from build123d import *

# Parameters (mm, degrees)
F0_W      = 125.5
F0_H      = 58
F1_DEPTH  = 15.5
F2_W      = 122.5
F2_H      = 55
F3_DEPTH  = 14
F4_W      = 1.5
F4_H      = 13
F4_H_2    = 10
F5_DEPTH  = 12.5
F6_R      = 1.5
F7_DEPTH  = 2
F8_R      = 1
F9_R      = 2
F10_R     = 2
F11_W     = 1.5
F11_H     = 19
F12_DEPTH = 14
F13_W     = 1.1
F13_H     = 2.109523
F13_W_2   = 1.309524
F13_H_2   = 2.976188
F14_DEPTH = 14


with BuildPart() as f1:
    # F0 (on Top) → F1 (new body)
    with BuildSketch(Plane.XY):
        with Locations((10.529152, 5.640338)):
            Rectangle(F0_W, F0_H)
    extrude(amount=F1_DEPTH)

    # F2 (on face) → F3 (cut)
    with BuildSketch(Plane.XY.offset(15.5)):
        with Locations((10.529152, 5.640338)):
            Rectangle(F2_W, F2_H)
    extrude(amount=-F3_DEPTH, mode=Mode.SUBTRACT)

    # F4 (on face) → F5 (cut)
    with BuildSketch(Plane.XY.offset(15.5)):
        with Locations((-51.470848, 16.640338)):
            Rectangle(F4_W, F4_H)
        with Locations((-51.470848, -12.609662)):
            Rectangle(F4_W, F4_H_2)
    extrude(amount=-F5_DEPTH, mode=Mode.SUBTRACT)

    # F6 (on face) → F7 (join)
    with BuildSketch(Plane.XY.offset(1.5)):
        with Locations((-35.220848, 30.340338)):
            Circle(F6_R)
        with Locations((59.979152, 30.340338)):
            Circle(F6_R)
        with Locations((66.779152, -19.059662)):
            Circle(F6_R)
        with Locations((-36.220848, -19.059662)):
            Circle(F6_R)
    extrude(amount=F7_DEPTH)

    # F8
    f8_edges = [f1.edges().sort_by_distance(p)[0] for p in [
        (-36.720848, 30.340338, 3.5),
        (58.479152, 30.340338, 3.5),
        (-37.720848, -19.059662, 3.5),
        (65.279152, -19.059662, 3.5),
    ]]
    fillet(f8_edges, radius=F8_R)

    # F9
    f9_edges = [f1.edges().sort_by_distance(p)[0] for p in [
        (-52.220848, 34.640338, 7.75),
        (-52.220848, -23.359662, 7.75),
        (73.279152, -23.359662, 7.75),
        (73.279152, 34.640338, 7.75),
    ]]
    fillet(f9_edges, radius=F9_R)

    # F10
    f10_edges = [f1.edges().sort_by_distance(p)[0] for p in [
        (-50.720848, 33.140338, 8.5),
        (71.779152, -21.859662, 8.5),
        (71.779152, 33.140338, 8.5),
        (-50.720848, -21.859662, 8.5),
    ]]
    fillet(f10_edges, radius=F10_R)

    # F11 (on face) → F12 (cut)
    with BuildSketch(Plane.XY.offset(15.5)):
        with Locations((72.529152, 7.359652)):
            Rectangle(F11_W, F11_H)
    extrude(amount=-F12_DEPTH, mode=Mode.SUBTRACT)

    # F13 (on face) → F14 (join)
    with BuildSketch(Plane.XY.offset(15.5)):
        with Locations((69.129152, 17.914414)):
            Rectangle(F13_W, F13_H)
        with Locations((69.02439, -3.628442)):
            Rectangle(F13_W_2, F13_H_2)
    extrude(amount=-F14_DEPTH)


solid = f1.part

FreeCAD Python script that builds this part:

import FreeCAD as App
import Part
import Sketcher


def edges_at(feature, points):
    """Names of the edges that pass closest to the given points."""
    edges = feature.Shape.Edges
    near = lambda p: min(range(len(edges)), key=lambda i: edges[i].distToShape(Part.Vertex(*p))[0])
    return sorted({f"Edge{near(p) + 1}" for p in points})


def add_polygon(sketch, points):
    """Adds a closed chain of lines whose ends are joined by coincident constraints."""
    first, n = sketch.GeometryCount, len(points)
    for a, b in zip(points, points[1:] + points[:1]):
        sketch.addGeometry(Part.LineSegment(App.Vector(*a, 0), App.Vector(*b, 0)), False)
    for i in range(n):
        sketch.addConstraint(Sketcher.Constraint("Coincident", first + i, 2, first + (i + 1) % n, 1))

doc = App.newDocument("Part")
params = doc.addObject("Spreadsheet::Sheet", "Params")
for row, (alias, value) in enumerate([
    ("sketch1_height", "58 mm"),
    ("sketch1_width", "125.5 mm"),
    ("pad1_length", "15.5 mm"),
    ("sketch2_height", "55 mm"),
    ("sketch2_width", "122.5 mm"),
    ("pocket1_length", "14 mm"),
    ("sketch3_height", "13 mm"),
    ("sketch3_height2", "10 mm"),
    ("sketch3_width", "1.5 mm"),
    ("pocket2_length", "12.5 mm"),
    ("sketch4_diameter", "3 mm"),
    ("pad2_length", "2 mm"),
    ("fillet_radius", "1 mm"),
    ("fillet2_radius", "2 mm"),
    ("fillet3_radius", "2 mm"),
    ("sketch5_height", "19 mm"),
    ("sketch5_width", "1.5 mm"),
    ("pocket3_length", "14 mm"),
    ("sketch6_width", "1.1 mm"),
    ("pad3_length", "14 mm"),
], start=1):
    params.set(f"A{row}", alias)
    params.set(f"B{row}", "=" + value)
    params.setAlias(f"B{row}", alias)

body = doc.addObject("PartDesign::Body", "Body")

# Sketch on XY plane
sketch1 = doc.addObject("Sketcher::SketchObject", "Sketch")
body.addObject(sketch1)
sketch1.AttachmentSupport = (doc.XY_Plane, [""])
sketch1.MapMode = "FlatFace"
add_polygon(sketch1, [(-52.220848, 34.640338), (-52.220848, -23.359662), (73.279152, -23.359662), (73.279152, 34.640338)])  # lines 0-3
sketch1.addConstraint(Sketcher.Constraint("Vertical", 0))
sketch1.addConstraint(Sketcher.Constraint("Horizontal", 1))
sketch1.addConstraint(Sketcher.Constraint("Vertical", 2))
sketch1.addConstraint(Sketcher.Constraint("Horizontal", 3))
sketch1.addConstraint(Sketcher.Constraint("DistanceY", 0, 2, 0, 1, 58.0))
sketch1.addConstraint(Sketcher.Constraint("DistanceX", 1, 1, 1, 2, 125.5))
sketch1.addConstraint(Sketcher.Constraint("DistanceY", 0, 2, -1, 1, 23.359662))
sketch1.addConstraint(Sketcher.Constraint("DistanceX", -1, 1, 1, 2, 73.279152))
sketch1.setExpression("Constraints[8]", "Params.sketch1_height")
sketch1.setExpression("Constraints[9]", "Params.sketch1_width")
pad1 = doc.addObject("PartDesign::Pad", "Pad")
body.addObject(pad1)
pad1.Profile = sketch1
pad1.setExpression("Length", "Params.pad1_length")

# Sketch on XY plane
sketch2 = doc.addObject("Sketcher::SketchObject", "Sketch001")
body.addObject(sketch2)
sketch2.AttachmentSupport = (doc.XY_Plane, [""])
sketch2.MapMode = "FlatFace"
sketch2.AttachmentOffset = App.Placement(App.Vector(0, 0, 15.5), App.Rotation())
add_polygon(sketch2, [(-50.720848, 33.140338), (-50.720848, -21.859662), (71.779152, -21.859662), (71.779152, 33.140338)])  # lines 0-3
sketch2.addConstraint(Sketcher.Constraint("Vertical", 0))
sketch2.addConstraint(Sketcher.Constraint("Horizontal", 1))
sketch2.addConstraint(Sketcher.Constraint("Vertical", 2))
sketch2.addConstraint(Sketcher.Constraint("Horizontal", 3))
sketch2.addConstraint(Sketcher.Constraint("DistanceY", 0, 2, 0, 1, 55.0))
sketch2.addConstraint(Sketcher.Constraint("DistanceX", 1, 1, 1, 2, 122.5))
sketch2.addConstraint(Sketcher.Constraint("DistanceY", 0, 2, -1, 1, 21.859662))
sketch2.addConstraint(Sketcher.Constraint("DistanceX", -1, 1, 1, 2, 71.779152))
sketch2.setExpression("Constraints[8]", "Params.sketch2_height")
sketch2.setExpression("Constraints[9]", "Params.sketch2_width")
pocket1 = doc.addObject("PartDesign::Pocket", "Pocket")
body.addObject(pocket1)
pocket1.Profile = sketch2
pocket1.setExpression("Length", "Params.pocket1_length")

# Sketch on XY plane
sketch3 = doc.addObject("Sketcher::SketchObject", "Sketch002")
body.addObject(sketch3)
sketch3.AttachmentSupport = (doc.XY_Plane, [""])
sketch3.MapMode = "FlatFace"
sketch3.AttachmentOffset = App.Placement(App.Vector(0, 0, 15.5), App.Rotation())
add_polygon(sketch3, [(-52.220848, 23.140338), (-52.220848, 10.140338), (-50.720848, 10.140338), (-50.720848, 23.140338)])  # lines 0-3
add_polygon(sketch3, [(-52.220848, -7.609662), (-52.220848, -17.609662), (-50.720848, -17.609662), (-50.720848, -7.609662)])  # lines 4-7
sketch3.addConstraint(Sketcher.Constraint("Vertical", 0))
sketch3.addConstraint(Sketcher.Constraint("Horizontal", 1))
sketch3.addConstraint(Sketcher.Constraint("Vertical", 2))
sketch3.addConstraint(Sketcher.Constraint("Horizontal", 3))
sketch3.addConstraint(Sketcher.Constraint("Vertical", 4))
sketch3.addConstraint(Sketcher.Constraint("Horizontal", 5))
sketch3.addConstraint(Sketcher.Constraint("Vertical", 6))
sketch3.addConstraint(Sketcher.Constraint("Horizontal", 7))
sketch3.addConstraint(Sketcher.Constraint("Vertical", 3, 2, 4, 2))
sketch3.addConstraint(Sketcher.Constraint("Vertical", 2, 2, 5, 2))
sketch3.addConstraint(Sketcher.Constraint("DistanceY", 0, 2, 0, 1, 13.0))
sketch3.addConstraint(Sketcher.Constraint("DistanceY", 4, 2, 4, 1, 10.0))
sketch3.addConstraint(Sketcher.Constraint("DistanceX", 1, 1, 1, 2, 1.5))
sketch3.addConstraint(Sketcher.Constraint("DistanceY", 4, 2, 0, 2, 27.75))
sketch3.addConstraint(Sketcher.Constraint("DistanceY", -1, 1, 2, 2, 23.140338))
sketch3.addConstraint(Sketcher.Constraint("DistanceX", 0, 2, -1, 1, 52.220848))
sketch3.setExpression("Constraints[18]", "Params.sketch3_height")
sketch3.setExpression("Constraints[19]", "Params.sketch3_height2")
sketch3.setExpression("Constraints[20]", "Params.sketch3_width")
pocket2 = doc.addObject("PartDesign::Pocket", "Pocket001")
body.addObject(pocket2)
pocket2.Profile = sketch3
pocket2.setExpression("Length", "Params.pocket2_length")

# Sketch on XY plane
sketch4 = doc.addObject("Sketcher::SketchObject", "Sketch003")
body.addObject(sketch4)
sketch4.AttachmentSupport = (doc.XY_Plane, [""])
sketch4.MapMode = "FlatFace"
sketch4.AttachmentOffset = App.Placement(App.Vector(0, 0, 1.5), App.Rotation())
sketch4.addGeometry(Part.Circle(App.Vector(-35.220848, 30.340338, 0), App.Vector(0, 0, 1), 1.5), False)
sketch4.addGeometry(Part.Circle(App.Vector(59.979152, 30.340338, 0), App.Vector(0, 0, 1), 1.5), False)
sketch4.addGeometry(Part.Circle(App.Vector(66.779152, -19.059662, 0), App.Vector(0, 0, 1), 1.5), False)
sketch4.addGeometry(Part.Circle(App.Vector(-36.220848, -19.059662, 0), App.Vector(0, 0, 1), 1.5), False)
sketch4.addConstraint(Sketcher.Constraint("Equal", 0, 1))
sketch4.addConstraint(Sketcher.Constraint("Equal", 1, 2))
sketch4.addConstraint(Sketcher.Constraint("Equal", 2, 3))
sketch4.addConstraint(Sketcher.Constraint("Horizontal", 0, 3, 1, 3))
sketch4.addConstraint(Sketcher.Constraint("Horizontal", 2, 3, 3, 3))
sketch4.addConstraint(Sketcher.Constraint("Diameter", 0, 3.0))
sketch4.addConstraint(Sketcher.Constraint("DistanceX", 0, 3, 2, 3, 102.0))
sketch4.addConstraint(Sketcher.Constraint("DistanceX", 3, 3, 0, 3, 1.0))
sketch4.addConstraint(Sketcher.Constraint("DistanceX", 0, 3, 1, 3, 95.2))
sketch4.addConstraint(Sketcher.Constraint("DistanceY", 2, 3, 1, 3, 49.4))
sketch4.addConstraint(Sketcher.Constraint("DistanceX", -1, 1, 2, 3, 66.779152))
sketch4.addConstraint(Sketcher.Constraint("DistanceY", 2, 3, -1, 1, 19.059662))
sketch4.setExpression("Constraints[5]", "Params.sketch4_diameter")
pad2 = doc.addObject("PartDesign::Pad", "Pad001")
body.addObject(pad2)
pad2.Profile = sketch4
pad2.setExpression("Length", "Params.pad2_length")
doc.recompute()

fillet = doc.addObject("PartDesign::Fillet", "Fillet")
body.addObject(fillet)
fillet.Base = (pad2, edges_at(pad2, [
    (-36.721, 30.34, 3.5),
    (58.479, 30.34, 3.5),
    (-37.721, -19.06, 3.5),
    (65.279, -19.06, 3.5),
]))
fillet.setExpression("Radius", "Params.fillet_radius")
doc.recompute()

fillet2 = doc.addObject("PartDesign::Fillet", "Fillet001")
body.addObject(fillet2)
fillet2.Base = (fillet, edges_at(fillet, [
    (-52.221, 34.64, 7.75),
    (-52.221, -23.36, 7.75),
    (73.279, -23.36, 7.75),
    (73.279, 34.64, 7.75),
]))
fillet2.setExpression("Radius", "Params.fillet2_radius")
doc.recompute()

fillet3 = doc.addObject("PartDesign::Fillet", "Fillet002")
body.addObject(fillet3)
fillet3.Base = (fillet2, edges_at(fillet2, [
    (-50.721, 33.14, 8.5),
    (71.779, -21.86, 8.5),
    (71.779, 33.14, 8.5),
    (-50.721, -21.86, 8.5),
]))
fillet3.setExpression("Radius", "Params.fillet3_radius")

# Sketch on XY plane
sketch5 = doc.addObject("Sketcher::SketchObject", "Sketch004")
body.addObject(sketch5)
sketch5.AttachmentSupport = (doc.XY_Plane, [""])
sketch5.MapMode = "FlatFace"
sketch5.AttachmentOffset = App.Placement(App.Vector(0, 0, 15.5), App.Rotation())
add_polygon(sketch5, [(71.779152, 16.859652), (71.779152, -2.140348), (73.279152, -2.140348), (73.279152, 16.859652)])  # lines 0-3
sketch5.addConstraint(Sketcher.Constraint("Vertical", 0))
sketch5.addConstraint(Sketcher.Constraint("Horizontal", 1))
sketch5.addConstraint(Sketcher.Constraint("Vertical", 2))
sketch5.addConstraint(Sketcher.Constraint("Horizontal", 3))
sketch5.addConstraint(Sketcher.Constraint("DistanceY", 0, 2, 0, 1, 19.0))
sketch5.addConstraint(Sketcher.Constraint("DistanceX", 1, 1, 1, 2, 1.5))
sketch5.addConstraint(Sketcher.Constraint("DistanceX", -1, 1, 0, 2, 71.779152))
sketch5.addConstraint(Sketcher.Constraint("DistanceY", 0, 2, -1, 1, 2.140348))
sketch5.setExpression("Constraints[8]", "Params.sketch5_height")
sketch5.setExpression("Constraints[9]", "Params.sketch5_width")
pocket3 = doc.addObject("PartDesign::Pocket", "Pocket002")
body.addObject(pocket3)
pocket3.Profile = sketch5
pocket3.setExpression("Length", "Params.pocket3_length")

# Sketch on XY plane
sketch6 = doc.addObject("Sketcher::SketchObject", "Sketch005")
body.addObject(sketch6)
sketch6.AttachmentSupport = (doc.XY_Plane, [""])
sketch6.MapMode = "FlatFace"
sketch6.AttachmentOffset = App.Placement(App.Vector(0, 0, 15.5), App.Rotation())
add_polygon(sketch6, [(68.579152, 18.969175), (68.579152, 16.859652), (69.679152, 16.859652), (69.679152, 18.969175)])  # lines 0-3
add_polygon(sketch6, [(68.369628, -2.140348), (68.369628, -5.116536), (69.679152, -5.116536), (69.679152, -2.140348)])  # lines 4-7
sketch6.addConstraint(Sketcher.Constraint("Vertical", 0))
sketch6.addConstraint(Sketcher.Constraint("Horizontal", 1))
sketch6.addConstraint(Sketcher.Constraint("Vertical", 2))
sketch6.addConstraint(Sketcher.Constraint("Horizontal", 3))
sketch6.addConstraint(Sketcher.Constraint("Vertical", 4))
sketch6.addConstraint(Sketcher.Constraint("Horizontal", 5))
sketch6.addConstraint(Sketcher.Constraint("Vertical", 6))
sketch6.addConstraint(Sketcher.Constraint("Horizontal", 7))
sketch6.addConstraint(Sketcher.Constraint("Vertical", 2, 2, 5, 2))
sketch6.addConstraint(Sketcher.Constraint("DistanceX", 1, 1, 1, 2, 1.1))
sketch6.addConstraint(Sketcher.Constraint("DistanceY", 6, 2, 1, 2, 19.0))
sketch6.addConstraint(Sketcher.Constraint("DistanceY", 4, 2, 4, 1, 2.976188))
sketch6.addConstraint(Sketcher.Constraint("DistanceX", 5, 1, 5, 2, 1.309524))
sketch6.addConstraint(Sketcher.Constraint("DistanceY", 0, 2, 0, 1, 2.109523))
sketch6.addConstraint(Sketcher.Constraint("DistanceX", -1, 1, 0, 2, 68.579152))
sketch6.addConstraint(Sketcher.Constraint("DistanceY", -1, 1, 0, 2, 16.859652))
sketch6.setExpression("Constraints[17]", "Params.sketch6_width")
pad3 = doc.addObject("PartDesign::Pad", "Pad002")
body.addObject(pad3)
pad3.Profile = sketch6
pad3.setExpression("Length", "Params.pad3_length")
pad3.Reversed = True

doc.recompute()
